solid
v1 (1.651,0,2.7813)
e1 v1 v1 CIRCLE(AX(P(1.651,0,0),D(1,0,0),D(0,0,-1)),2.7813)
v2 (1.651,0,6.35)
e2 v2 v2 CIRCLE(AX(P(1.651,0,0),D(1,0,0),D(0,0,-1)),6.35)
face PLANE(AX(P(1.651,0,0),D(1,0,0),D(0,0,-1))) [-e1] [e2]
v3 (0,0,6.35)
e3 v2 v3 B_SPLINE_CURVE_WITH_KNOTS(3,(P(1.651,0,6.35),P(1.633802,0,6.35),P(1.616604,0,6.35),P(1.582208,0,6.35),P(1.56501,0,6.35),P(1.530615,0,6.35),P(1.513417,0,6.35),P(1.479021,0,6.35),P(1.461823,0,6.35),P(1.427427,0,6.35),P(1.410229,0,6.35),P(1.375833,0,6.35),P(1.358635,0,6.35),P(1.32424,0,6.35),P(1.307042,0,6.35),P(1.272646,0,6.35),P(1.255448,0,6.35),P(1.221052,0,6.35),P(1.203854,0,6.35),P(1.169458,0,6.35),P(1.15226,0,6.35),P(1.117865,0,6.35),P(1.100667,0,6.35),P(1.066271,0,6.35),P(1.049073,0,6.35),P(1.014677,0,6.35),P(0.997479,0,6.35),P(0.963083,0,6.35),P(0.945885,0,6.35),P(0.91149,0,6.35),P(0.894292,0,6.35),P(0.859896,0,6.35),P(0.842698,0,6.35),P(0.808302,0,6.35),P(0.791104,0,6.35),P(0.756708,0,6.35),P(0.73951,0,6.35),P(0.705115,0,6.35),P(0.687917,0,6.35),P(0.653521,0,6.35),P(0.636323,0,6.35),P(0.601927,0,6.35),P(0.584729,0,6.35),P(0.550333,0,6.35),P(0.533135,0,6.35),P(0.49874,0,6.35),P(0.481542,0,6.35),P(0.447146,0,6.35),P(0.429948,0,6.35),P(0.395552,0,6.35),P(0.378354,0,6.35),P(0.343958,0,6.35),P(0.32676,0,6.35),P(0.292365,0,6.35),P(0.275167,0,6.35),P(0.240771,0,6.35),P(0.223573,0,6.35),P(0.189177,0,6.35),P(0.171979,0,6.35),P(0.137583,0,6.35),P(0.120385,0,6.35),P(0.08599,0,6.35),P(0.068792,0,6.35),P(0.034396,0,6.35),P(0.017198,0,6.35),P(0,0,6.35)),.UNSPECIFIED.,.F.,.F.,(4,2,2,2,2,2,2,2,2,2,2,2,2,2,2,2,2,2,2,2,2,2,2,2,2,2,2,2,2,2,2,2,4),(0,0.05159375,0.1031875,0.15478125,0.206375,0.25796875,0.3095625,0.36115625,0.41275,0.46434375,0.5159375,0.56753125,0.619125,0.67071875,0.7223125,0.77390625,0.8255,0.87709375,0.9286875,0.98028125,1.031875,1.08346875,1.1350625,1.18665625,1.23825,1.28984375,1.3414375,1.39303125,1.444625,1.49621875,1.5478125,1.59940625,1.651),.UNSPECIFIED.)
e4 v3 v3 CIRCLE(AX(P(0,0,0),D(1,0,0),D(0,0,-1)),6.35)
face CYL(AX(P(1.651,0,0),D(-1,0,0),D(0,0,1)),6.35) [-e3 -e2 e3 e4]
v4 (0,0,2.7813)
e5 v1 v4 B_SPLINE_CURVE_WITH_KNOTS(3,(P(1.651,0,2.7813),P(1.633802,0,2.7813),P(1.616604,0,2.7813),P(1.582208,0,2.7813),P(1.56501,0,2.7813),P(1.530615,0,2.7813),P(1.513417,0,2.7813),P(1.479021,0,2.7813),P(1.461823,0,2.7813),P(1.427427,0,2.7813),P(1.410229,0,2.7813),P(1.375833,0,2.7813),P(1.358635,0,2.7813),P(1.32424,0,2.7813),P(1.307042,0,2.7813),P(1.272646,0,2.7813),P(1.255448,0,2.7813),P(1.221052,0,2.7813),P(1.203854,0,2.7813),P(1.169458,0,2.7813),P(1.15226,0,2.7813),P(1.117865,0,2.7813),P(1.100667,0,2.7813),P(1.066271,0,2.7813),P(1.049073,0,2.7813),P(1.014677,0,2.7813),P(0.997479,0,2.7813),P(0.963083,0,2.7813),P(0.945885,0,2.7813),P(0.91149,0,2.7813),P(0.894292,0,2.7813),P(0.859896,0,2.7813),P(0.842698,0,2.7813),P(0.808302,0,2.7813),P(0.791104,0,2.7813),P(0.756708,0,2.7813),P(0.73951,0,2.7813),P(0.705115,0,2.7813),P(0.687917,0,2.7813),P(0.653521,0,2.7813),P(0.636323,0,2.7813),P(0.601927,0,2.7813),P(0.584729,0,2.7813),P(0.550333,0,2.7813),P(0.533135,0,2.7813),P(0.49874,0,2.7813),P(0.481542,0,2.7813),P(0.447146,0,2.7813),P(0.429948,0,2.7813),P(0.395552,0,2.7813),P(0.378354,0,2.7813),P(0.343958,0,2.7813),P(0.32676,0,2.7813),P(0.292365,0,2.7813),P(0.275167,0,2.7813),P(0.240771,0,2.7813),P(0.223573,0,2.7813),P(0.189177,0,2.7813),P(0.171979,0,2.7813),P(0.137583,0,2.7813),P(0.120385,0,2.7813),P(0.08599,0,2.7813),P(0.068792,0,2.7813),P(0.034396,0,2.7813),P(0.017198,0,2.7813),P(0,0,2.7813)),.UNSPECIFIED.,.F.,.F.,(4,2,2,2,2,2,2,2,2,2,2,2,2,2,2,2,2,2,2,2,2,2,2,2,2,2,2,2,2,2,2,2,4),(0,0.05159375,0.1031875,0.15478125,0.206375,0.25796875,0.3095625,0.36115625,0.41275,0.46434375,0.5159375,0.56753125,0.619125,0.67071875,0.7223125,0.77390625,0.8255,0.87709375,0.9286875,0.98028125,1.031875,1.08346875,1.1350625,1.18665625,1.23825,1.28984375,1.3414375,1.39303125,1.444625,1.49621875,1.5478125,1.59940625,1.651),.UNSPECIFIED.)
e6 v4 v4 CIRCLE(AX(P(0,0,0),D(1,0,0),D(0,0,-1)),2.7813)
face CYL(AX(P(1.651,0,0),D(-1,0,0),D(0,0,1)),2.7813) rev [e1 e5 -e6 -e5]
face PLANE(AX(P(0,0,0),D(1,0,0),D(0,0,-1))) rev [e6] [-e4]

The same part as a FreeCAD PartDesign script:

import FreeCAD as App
import Part
import Sketcher
from FreeCAD import Vector
Q = App.Units.Quantity

doc = App.newDocument("Part")
body = doc.addObject("PartDesign::Body", "Body")

sketch1 = body.newObject("Sketcher::SketchObject", "Sketch")
sketch1.AttachmentSupport = (doc.getObject("YZ_Plane"), [""])
sketch1.MapMode = "FlatFace"
sketch1.addGeometry([
    Part.Circle(Vector(0, 0, 0), Vector(0, 0, 1), 6.35),
    Part.Circle(Vector(0, 0, 0), Vector(0, 0, 1), 2.7813),
], False)
sketch1.addConstraint([
    Sketcher.Constraint("Coincident", 0, 3, -1, 1),
    Sketcher.Constraint("Coincident", 1, 3, -1, 1),
    Sketcher.Constraint("Diameter", 0, Q("0.5 in")),
    Sketcher.Constraint("Diameter", 1, Q("0.219 in")),
])
pad1 = body.newObject("PartDesign::Pad", "Pad")
pad1.Profile = sketch1
pad1.Length = Q("0.065 in")

doc.recompute()
